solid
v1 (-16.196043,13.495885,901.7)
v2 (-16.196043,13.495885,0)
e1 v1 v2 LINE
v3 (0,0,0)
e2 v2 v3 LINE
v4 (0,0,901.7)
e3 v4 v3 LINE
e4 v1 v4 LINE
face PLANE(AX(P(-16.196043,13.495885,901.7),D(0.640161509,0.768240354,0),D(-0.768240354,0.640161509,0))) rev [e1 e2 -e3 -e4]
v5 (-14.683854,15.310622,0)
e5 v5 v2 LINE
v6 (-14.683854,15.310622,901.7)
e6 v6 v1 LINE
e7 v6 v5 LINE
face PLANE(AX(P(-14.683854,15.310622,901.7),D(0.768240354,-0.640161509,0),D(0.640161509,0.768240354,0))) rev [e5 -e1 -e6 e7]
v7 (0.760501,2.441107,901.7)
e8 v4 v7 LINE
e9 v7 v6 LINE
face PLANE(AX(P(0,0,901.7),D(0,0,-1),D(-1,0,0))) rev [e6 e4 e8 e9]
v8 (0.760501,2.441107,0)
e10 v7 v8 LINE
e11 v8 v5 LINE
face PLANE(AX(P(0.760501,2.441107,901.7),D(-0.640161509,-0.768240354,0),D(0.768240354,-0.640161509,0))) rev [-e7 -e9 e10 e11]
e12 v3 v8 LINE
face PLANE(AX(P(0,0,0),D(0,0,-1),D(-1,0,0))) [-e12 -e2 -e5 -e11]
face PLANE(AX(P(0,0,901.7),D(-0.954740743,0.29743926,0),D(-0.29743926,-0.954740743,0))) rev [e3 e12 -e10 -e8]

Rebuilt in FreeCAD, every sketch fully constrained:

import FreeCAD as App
import Part
import Sketcher
from FreeCAD import Vector
Q = App.Units.Quantity


def add_polygon(sketch, points):
    """Adds a closed chain of lines whose ends are joined by coincident constraints."""
    first, n = sketch.GeometryCount, len(points)
    for a, b in zip(points, points[1:] + points[:1]):
        sketch.addGeometry(Part.LineSegment(App.Vector(*a, 0), App.Vector(*b, 0)), False)
    for i in range(n):
        sketch.addConstraint(Sketcher.Constraint("Coincident", first + i, 2, first + (i + 1) % n, 1))

doc = App.newDocument("Part")
body = doc.addObject("PartDesign::Body", "Body")

# Sketch on XY plane
sketch1 = body.newObject("Sketcher::SketchObject", "Sketch")
sketch1.AttachmentSupport = (doc.getObject("XY_Plane"), [""])
sketch1.MapMode = "FlatFace"
add_polygon(sketch1, [(0, 0), (0.760501, 2.441107), (-14.683854, 15.310622), (-16.196043, 13.495885)])  # lines 0-3
sketch1.addConstraint(Sketcher.Constraint("Coincident", 3, 2, -1, 1))
sketch1.addConstraint(Sketcher.Constraint("Perpendicular", 1, 2))
sketch1.addConstraint(Sketcher.Constraint("Perpendicular", 2, 3))
sketch1.addConstraint(Sketcher.Constraint("Distance", 3, Q("0.83 in")))
sketch1.addConstraint(Sketcher.Constraint("Distance", 2, Q("0.093 in")))
sketch1.addConstraint(Sketcher.Constraint("DistanceX", -1, 1, 0, 2, 0.760501))
sketch1.addConstraint(Sketcher.Constraint("DistanceX", 2, 2, 1, 2, 1.51219))
pad1 = body.newObject("PartDesign::Pad", "Pad")
pad1.Profile = sketch1
pad1.Length = Q("35.5 in")

doc.recompute()
